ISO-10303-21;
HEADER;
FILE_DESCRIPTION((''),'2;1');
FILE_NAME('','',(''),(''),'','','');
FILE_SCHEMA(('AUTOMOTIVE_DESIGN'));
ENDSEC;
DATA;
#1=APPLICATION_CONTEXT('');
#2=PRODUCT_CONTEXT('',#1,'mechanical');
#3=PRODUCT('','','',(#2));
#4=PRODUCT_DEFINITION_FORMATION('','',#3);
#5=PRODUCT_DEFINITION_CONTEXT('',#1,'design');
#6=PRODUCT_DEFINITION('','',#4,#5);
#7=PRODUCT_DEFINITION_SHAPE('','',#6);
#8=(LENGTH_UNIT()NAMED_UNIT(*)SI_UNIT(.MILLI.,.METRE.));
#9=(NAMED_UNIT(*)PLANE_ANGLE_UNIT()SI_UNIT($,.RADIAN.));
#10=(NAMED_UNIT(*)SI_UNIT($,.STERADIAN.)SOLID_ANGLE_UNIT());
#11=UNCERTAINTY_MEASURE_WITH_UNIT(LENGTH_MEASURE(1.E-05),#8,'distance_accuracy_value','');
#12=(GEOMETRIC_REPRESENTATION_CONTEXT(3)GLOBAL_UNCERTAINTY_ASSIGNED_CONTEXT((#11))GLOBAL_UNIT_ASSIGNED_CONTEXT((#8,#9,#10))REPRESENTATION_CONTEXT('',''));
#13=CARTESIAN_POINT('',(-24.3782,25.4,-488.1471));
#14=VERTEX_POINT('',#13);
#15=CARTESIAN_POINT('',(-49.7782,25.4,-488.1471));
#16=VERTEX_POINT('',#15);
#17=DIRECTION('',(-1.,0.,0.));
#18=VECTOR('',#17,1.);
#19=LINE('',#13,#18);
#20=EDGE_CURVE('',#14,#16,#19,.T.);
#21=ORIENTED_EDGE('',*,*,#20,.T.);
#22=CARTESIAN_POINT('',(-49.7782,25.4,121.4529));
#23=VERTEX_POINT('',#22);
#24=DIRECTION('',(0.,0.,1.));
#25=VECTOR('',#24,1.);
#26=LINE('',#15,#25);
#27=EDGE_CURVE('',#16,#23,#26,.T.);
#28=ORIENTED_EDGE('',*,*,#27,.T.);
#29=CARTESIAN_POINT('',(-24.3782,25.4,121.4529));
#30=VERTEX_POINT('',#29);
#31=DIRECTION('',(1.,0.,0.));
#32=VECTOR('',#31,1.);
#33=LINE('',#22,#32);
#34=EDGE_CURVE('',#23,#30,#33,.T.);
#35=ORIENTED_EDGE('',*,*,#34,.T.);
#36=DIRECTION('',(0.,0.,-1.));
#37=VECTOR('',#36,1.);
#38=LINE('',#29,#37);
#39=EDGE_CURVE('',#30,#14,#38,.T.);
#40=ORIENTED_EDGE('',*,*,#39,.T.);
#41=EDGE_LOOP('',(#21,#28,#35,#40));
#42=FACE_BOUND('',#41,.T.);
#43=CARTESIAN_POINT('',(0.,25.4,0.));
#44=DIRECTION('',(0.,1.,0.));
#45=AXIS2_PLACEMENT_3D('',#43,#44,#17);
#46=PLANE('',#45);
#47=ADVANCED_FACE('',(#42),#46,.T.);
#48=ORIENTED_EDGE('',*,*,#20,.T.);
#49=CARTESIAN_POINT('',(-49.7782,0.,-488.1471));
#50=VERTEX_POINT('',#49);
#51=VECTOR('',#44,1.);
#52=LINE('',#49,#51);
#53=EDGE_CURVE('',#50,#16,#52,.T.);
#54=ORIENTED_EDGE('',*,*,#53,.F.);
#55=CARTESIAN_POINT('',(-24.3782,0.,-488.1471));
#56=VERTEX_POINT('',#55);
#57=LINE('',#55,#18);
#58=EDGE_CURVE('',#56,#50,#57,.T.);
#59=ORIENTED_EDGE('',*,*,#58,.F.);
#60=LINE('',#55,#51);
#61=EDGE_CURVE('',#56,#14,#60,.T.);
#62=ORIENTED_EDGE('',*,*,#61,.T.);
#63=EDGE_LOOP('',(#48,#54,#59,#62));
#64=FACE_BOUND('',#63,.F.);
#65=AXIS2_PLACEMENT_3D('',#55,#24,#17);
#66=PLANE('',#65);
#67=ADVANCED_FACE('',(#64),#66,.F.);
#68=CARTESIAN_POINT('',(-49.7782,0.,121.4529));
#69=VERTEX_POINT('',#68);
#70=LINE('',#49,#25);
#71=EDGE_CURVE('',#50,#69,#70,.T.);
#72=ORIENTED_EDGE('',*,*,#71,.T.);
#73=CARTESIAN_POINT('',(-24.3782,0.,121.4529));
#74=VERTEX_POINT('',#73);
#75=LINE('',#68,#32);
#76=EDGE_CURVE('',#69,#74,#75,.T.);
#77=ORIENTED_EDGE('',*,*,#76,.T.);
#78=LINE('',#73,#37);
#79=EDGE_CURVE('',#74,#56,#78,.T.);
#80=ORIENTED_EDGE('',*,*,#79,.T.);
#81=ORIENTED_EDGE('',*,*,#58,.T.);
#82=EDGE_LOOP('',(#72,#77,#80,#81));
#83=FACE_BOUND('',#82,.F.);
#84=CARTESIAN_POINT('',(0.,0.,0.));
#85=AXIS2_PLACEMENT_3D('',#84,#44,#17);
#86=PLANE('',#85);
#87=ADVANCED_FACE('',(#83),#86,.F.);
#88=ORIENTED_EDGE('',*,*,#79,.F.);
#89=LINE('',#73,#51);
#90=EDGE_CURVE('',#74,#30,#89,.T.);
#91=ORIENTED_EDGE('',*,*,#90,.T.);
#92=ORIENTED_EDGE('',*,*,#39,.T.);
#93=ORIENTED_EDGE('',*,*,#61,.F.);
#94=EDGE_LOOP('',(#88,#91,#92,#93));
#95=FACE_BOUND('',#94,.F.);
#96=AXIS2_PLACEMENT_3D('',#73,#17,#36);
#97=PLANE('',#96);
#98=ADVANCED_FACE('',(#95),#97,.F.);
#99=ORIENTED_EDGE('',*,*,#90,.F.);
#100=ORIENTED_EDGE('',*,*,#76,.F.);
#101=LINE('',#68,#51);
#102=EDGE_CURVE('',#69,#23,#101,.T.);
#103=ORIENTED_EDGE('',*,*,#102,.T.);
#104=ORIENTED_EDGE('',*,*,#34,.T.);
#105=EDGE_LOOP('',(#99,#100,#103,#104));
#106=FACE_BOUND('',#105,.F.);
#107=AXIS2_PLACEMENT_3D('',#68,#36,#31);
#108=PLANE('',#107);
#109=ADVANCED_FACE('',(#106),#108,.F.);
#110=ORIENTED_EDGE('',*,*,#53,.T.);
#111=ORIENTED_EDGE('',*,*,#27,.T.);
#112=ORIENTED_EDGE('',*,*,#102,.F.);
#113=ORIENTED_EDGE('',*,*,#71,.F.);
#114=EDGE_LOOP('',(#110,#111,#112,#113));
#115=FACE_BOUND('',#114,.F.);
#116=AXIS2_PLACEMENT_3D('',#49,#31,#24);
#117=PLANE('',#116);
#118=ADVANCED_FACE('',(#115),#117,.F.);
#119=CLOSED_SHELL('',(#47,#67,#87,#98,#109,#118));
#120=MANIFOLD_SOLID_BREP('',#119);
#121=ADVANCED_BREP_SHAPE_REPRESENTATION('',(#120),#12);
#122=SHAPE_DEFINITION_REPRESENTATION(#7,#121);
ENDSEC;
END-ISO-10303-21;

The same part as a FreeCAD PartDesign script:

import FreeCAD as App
import Part
import Sketcher
from FreeCAD import Vector
Q = App.Units.Quantity

doc = App.newDocument("Part")
params = doc.addObject("Spreadsheet::Sheet", "Params")
for row, (alias, value) in enumerate([
    ("sketch1_width", "1 in"),
    ("sketch1_height", "24 in"),
    ("pad1_length", "1 in"),
], start=1):
    params.set(f"A{row}", alias)
    params.set(f"B{row}", "=" + value)
    params.setAlias(f"B{row}", alias)

body = doc.addObject("PartDesign::Body", "Body")

# Sketch on XZ plane
sketch1 = body.newObject("Sketcher::SketchObject", "Sketch")
sketch1.AttachmentSupport = (doc.getObject("XZ_Plane"), [""])
sketch1.MapMode = "FlatFace"
sketch1.addGeometry([
    Part.LineSegment(Vector(-50, -488, 0), Vector(-50, 121, 0)),
    Part.LineSegment(Vector(-50, 121, 0), Vector(-24, 121, 0)),
    Part.LineSegment(Vector(-24, 121, 0), Vector(-24, -488, 0)),
    Part.LineSegment(Vector(-24, -488, 0), Vector(-50, -488, 0)),
], False)
sketch1.addConstraint([
    Sketcher.Constraint("Coincident", 0, 2, 1, 1),
    Sketcher.Constraint("Coincident", 1, 2, 2, 1),
    Sketcher.Constraint("Coincident", 2, 2, 3, 1),
    Sketcher.Constraint("Coincident", 3, 2, 0, 1),
    Sketcher.Constraint("Vertical", 0),
    Sketcher.Constraint("Horizontal", 1),
    Sketcher.Constraint("Vertical", 2),
    Sketcher.Constraint("Horizontal", 3),
    Sketcher.Constraint("DistanceX", 1, 1, 1, 2, Q("1 in")),
    Sketcher.Constraint("DistanceY", 0, 1, 0, 2, Q("24 in")),
    Sketcher.Constraint("DistanceY", -1, 1, 0, 2, Q("4.7816 in")),
    Sketcher.Constraint("DistanceX", 0, 2, -1, 1, 49.7782),
])
sketch1.setExpression("Constraints[8]", "Params.sketch1_width")
sketch1.setExpression("Constraints[9]", "Params.sketch1_height")
pad1 = body.newObject("PartDesign::Pad", "Pad")
pad1.Profile = sketch1
pad1.setExpression("Length", "Params.pad1_length")
pad1.Reversed = True

doc.recompute()
